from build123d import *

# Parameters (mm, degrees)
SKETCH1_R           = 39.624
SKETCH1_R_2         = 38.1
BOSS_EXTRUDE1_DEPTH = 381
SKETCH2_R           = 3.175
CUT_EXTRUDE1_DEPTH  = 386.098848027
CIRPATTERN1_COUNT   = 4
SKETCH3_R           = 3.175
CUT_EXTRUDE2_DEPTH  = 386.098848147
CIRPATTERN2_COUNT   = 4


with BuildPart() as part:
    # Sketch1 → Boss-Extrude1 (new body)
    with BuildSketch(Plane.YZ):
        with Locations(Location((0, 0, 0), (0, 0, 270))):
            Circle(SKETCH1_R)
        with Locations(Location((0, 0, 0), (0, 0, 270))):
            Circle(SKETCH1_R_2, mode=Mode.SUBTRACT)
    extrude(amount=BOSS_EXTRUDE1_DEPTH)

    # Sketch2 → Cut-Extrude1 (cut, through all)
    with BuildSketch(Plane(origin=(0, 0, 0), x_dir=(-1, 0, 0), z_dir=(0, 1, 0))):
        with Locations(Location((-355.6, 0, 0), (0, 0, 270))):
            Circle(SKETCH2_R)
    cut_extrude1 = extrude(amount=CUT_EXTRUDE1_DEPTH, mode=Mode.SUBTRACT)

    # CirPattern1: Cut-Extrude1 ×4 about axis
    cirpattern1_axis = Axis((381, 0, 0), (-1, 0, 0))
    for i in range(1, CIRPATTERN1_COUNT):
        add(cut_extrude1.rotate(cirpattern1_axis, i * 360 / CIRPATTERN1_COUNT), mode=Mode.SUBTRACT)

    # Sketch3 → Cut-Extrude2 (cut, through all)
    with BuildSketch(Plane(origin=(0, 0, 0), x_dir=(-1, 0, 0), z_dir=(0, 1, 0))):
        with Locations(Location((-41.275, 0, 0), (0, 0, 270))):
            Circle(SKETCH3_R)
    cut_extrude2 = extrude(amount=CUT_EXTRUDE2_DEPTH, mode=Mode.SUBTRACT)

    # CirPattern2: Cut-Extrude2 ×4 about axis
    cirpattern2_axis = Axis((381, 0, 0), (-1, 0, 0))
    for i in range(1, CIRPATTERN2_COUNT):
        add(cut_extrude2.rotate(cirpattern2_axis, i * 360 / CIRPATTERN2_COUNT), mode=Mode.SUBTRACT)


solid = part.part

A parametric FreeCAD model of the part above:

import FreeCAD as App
import Part
import Sketcher

V = App.Vector
Q = App.Units.Quantity

doc = App.newDocument("Part")
body = doc.addObject("PartDesign::Body", "Body")

# Sketch on YZ plane
sketch1 = body.newObject("Sketcher::SketchObject", "Sketch")
sketch1.AttachmentSupport = (doc.getObject("YZ_Plane"), [""])
sketch1.MapMode = "FlatFace"
sketch1.addGeometry(Part.Circle(V(0, 0, 0), V(0, 0, 1), 40), False)
sketch1.addGeometry(Part.Circle(V(0, 0, 0), V(0, 0, 1), 38), False)
sketch1.addConstraint(Sketcher.Constraint("Coincident", 0, 3, -1, 1))
sketch1.addConstraint(Sketcher.Constraint("Coincident", 1, 3, -1, 1))
sketch1.addConstraint(Sketcher.Constraint("Diameter", 1, Q("3 in")))
sketch1.addConstraint(Sketcher.Constraint("Diameter", 0, Q("3.12 in")))
pad1 = body.newObject("PartDesign::Pad", "Pad")
pad1.Profile = sketch1
pad1.Length = Q("15 in")

# Sketch on XZ plane
sketch2 = body.newObject("Sketcher::SketchObject", "Sketch001")
sketch2.AttachmentSupport = (doc.getObject("XZ_Plane"), [""])
sketch2.MapMode = "FlatFace"
sketch2.addGeometry(Part.Circle(V(355.6, 0, 0), V(0, 0, 1), 3.2), False)
sketch2.addConstraint(Sketcher.Constraint("PointOnObject", 0, 3, -1))
sketch2.addConstraint(Sketcher.Constraint("Diameter", 0, Q("0.25 in")))
sketch2.addConstraint(Sketcher.Constraint("DistanceX", -1, 1, 0, 3, Q("14 in")))
pocket1 = body.newObject("PartDesign::Pocket", "Pocket")
pocket1.Profile = sketch2
pocket1.Type = "ThroughAll"
doc.recompute()

polarpattern = body.newObject("PartDesign::PolarPattern", "PolarPattern")
polarpattern.Originals = [pocket1]
polarpattern.Axis = (doc.getObject("X_Axis"), [""])
polarpattern.Angle = 360
polarpattern.Occurrences = 4
body.Tip = polarpattern

# Sketch on XZ plane
sketch3 = body.newObject("Sketcher::SketchObject", "Sketch002")
sketch3.AttachmentSupport = (doc.getObject("XZ_Plane"), [""])
sketch3.MapMode = "FlatFace"
sketch3.addGeometry(Part.Circle(V(41.3, 0, 0), V(0, 0, 1), 3.2), False)
sketch3.addConstraint(Sketcher.Constraint("PointOnObject", 0, 3, -1))
sketch3.addConstraint(Sketcher.Constraint("Diameter", 0, Q("0.25 in")))
sketch3.addConstraint(Sketcher.Constraint("DistanceX", -1, 1, 0, 3, Q("1.625 in")))
pocket2 = body.newObject("PartDesign::Pocket", "Pocket001")
pocket2.Profile = sketch3
pocket2.Type = "ThroughAll"
doc.recompute()

polarpattern2 = body.newObject("PartDesign::PolarPattern", "PolarPattern001")
polarpattern2.Originals = [pocket2]
polarpattern2.Axis = (doc.getObject("X_Axis"), [""])
polarpattern2.Angle = 360
polarpattern2.Occurrences = 4
body.Tip = polarpattern2

doc.recompute()
